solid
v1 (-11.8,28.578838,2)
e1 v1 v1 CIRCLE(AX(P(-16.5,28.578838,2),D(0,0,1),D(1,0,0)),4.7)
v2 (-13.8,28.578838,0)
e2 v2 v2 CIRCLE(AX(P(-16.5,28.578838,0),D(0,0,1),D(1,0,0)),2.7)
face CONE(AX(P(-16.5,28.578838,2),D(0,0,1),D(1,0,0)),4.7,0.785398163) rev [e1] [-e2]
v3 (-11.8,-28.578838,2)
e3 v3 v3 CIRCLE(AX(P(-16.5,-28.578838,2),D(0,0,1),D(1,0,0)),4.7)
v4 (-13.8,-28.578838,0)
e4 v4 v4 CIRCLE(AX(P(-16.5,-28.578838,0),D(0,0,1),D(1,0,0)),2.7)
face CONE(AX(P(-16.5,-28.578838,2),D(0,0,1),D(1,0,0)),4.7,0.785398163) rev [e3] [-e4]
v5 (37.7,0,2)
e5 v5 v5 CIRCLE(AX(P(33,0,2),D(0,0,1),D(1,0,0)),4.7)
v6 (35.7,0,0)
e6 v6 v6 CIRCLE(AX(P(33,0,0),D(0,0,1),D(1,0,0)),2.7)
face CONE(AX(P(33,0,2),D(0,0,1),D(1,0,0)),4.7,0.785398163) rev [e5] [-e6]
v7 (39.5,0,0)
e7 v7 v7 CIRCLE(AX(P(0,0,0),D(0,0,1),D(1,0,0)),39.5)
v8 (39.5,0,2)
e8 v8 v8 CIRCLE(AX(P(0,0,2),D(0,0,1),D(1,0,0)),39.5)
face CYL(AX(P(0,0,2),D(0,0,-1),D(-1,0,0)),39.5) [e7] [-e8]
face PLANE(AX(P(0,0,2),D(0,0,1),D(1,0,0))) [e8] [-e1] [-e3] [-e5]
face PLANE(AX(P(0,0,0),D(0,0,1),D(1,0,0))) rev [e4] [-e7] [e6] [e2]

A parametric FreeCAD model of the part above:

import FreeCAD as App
import Part
import Sketcher
from FreeCAD import Vector
Q = App.Units.Quantity

doc = App.newDocument("Part")
body = doc.addObject("PartDesign::Body", "Body")

# Sketch on XY plane
sketch1 = body.newObject("Sketcher::SketchObject", "Sketch")
sketch1.AttachmentSupport = (doc.getObject("XY_Plane"), [""])
sketch1.MapMode = "FlatFace"
sketch1.addGeometry(Part.Circle(Vector(0, 0, 0), Vector(0, 0, 1), 40), False)
sketch1.addConstraint([
    Sketcher.Constraint("Coincident", 0, 3, -1, 1),
    Sketcher.Constraint("Diameter", 0, Q("79 mm")),
])
pad1 = body.newObject("PartDesign::Pad", "Pad")
pad1.Profile = sketch1
pad1.Length = 2

# Sketch on YZ plane
sketch2 = body.newObject("Sketcher::SketchObject", "Sketch001")
sketch2.AttachmentSupport = (doc.getObject("YZ_Plane"), [""])
sketch2.MapMode = "FlatFace"
sketch2.AttachmentOffset = App.Placement(Vector(0, 0, 33), App.Rotation())
sketch2.addGeometry([
    Part.LineSegment(Vector(0, -25.4, 0), Vector(0, 2, 0)),  # 0
    Part.LineSegment(Vector(0, 2, 0), Vector(-4.7, 2, 0)),  # 1
    Part.LineSegment(Vector(-4.7, 2, 0), Vector(-2.2, -0.5, 0)),  # 2
    Part.LineSegment(Vector(-2.2, -0.5, 0), Vector(-2.2, -24, 0)),  # 3
    Part.LineSegment(Vector(-2.2, -24, 0), Vector(0, -25.4, 0)),  # 4
], False)
sketch2.addConstraint([
    Sketcher.Constraint("Coincident", 0, 2, 1, 1),
    Sketcher.Constraint("Coincident", 1, 2, 2, 1),
    Sketcher.Constraint("Coincident", 2, 2, 3, 1),
    Sketcher.Constraint("Coincident", 3, 2, 4, 1),
    Sketcher.Constraint("Coincident", 4, 2, 0, 1),
    Sketcher.Constraint("Vertical", 0),
    Sketcher.Constraint("Horizontal", 1),
    Sketcher.Constraint("Vertical", 3),
    Sketcher.Constraint("PointOnObject", 0, 2, -2),
    Sketcher.Constraint("Angle", 2, Q("-45 deg")),
    Sketcher.Constraint("Angle", 4, Q("-31 deg")),
    Sketcher.Constraint("DistanceX", 1, 2, 1, 1, Q("4.7 mm")),
    Sketcher.Constraint("DistanceY", -1, 1, 0, 2, Q("2 mm")),
    Sketcher.Constraint("DistanceY", 3, 2, 3, 1, Q("23.59 mm")),
    Sketcher.Constraint("DistanceX", 2, 2, -1, 1, Q("2.25 mm")),
])
groove = body.newObject("PartDesign::Groove", "Groove")
groove.Profile = sketch2
groove.ReferenceAxis = (sketch2, ["V_Axis"])
groove.Angle = 360
doc.recompute()

polarpattern = body.newObject("PartDesign::PolarPattern", "PolarPattern")
polarpattern.Originals = [groove]
polarpattern.Axis = (doc.getObject("Z_Axis"), [""])
polarpattern.Angle = 360
polarpattern.Occurrences = 3
body.Tip = polarpattern

doc.recompute()
